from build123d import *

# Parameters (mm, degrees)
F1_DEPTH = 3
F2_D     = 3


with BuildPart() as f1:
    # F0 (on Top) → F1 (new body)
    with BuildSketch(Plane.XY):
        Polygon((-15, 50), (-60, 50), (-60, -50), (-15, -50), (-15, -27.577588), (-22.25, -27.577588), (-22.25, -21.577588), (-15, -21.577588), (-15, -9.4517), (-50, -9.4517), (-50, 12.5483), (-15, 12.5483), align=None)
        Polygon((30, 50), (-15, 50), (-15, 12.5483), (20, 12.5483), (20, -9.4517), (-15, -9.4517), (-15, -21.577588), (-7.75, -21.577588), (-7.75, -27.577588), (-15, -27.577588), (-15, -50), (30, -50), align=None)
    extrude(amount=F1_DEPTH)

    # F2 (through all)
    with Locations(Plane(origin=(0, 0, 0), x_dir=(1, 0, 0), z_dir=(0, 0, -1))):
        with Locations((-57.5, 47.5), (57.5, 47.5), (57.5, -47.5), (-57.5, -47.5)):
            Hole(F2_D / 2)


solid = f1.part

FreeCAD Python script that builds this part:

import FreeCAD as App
import Part
import Sketcher

V = App.Vector

doc = App.newDocument("Part")
body = doc.addObject("PartDesign::Body", "Body")

# Sketch on XY plane
sketch1 = body.newObject("Sketcher::SketchObject", "Sketch")
sketch1.AttachmentSupport = (doc.getObject("XY_Plane"), [""])
sketch1.MapMode = "FlatFace"
sketch1.addGeometry(Part.LineSegment(V(-60, 50, 0), V(-60, -50, 0)), False)
sketch1.addGeometry(Part.LineSegment(V(-60, -50, 0), V(30, -50, 0)), False)
sketch1.addGeometry(Part.LineSegment(V(30, -50, 0), V(30, 50, 0)), False)
sketch1.addGeometry(Part.LineSegment(V(30, 50, 0), V(-60, 50, 0)), False)
sketch1.addGeometry(Part.LineSegment(V(-22, -28, 0), V(-22, -22, 0)), False)
sketch1.addGeometry(Part.LineSegment(V(-22, -22, 0), V(-8, -22, 0)), False)
sketch1.addGeometry(Part.LineSegment(V(-8, -22, 0), V(-8, -28, 0)), False)
sketch1.addGeometry(Part.LineSegment(V(-8, -28, 0), V(-22, -28, 0)), False)
sketch1.addGeometry(Part.LineSegment(V(-50, -9, 0), V(-50, 13, 0)), False)
sketch1.addGeometry(Part.LineSegment(V(-50, 13, 0), V(20, 13, 0)), False)
sketch1.addGeometry(Part.LineSegment(V(20, 13, 0), V(20, -9, 0)), False)
sketch1.addGeometry(Part.LineSegment(V(20, -9, 0), V(-50, -9, 0)), False)
sketch1.addConstraint(Sketcher.Constraint("Coincident", 0, 2, 1, 1))
sketch1.addConstraint(Sketcher.Constraint("Coincident", 1, 2, 2, 1))
sketch1.addConstraint(Sketcher.Constraint("Coincident", 2, 2, 3, 1))
sketch1.addConstraint(Sketcher.Constraint("Coincident", 3, 2, 0, 1))
sketch1.addConstraint(Sketcher.Constraint("Coincident", 4, 2, 5, 1))
sketch1.addConstraint(Sketcher.Constraint("Coincident", 5, 2, 6, 1))
sketch1.addConstraint(Sketcher.Constraint("Coincident", 6, 2, 7, 1))
sketch1.addConstraint(Sketcher.Constraint("Coincident", 7, 2, 4, 1))
sketch1.addConstraint(Sketcher.Constraint("Coincident", 8, 2, 9, 1))
sketch1.addConstraint(Sketcher.Constraint("Coincident", 9, 2, 10, 1))
sketch1.addConstraint(Sketcher.Constraint("Coincident", 10, 2, 11, 1))
sketch1.addConstraint(Sketcher.Constraint("Coincident", 11, 2, 8, 1))
sketch1.addConstraint(Sketcher.Constraint("Vertical", 0))
sketch1.addConstraint(Sketcher.Constraint("Horizontal", 1))
sketch1.addConstraint(Sketcher.Constraint("Vertical", 2))
sketch1.addConstraint(Sketcher.Constraint("Horizontal", 3))
sketch1.addConstraint(Sketcher.Constraint("Vertical", 4))
sketch1.addConstraint(Sketcher.Constraint("Horizontal", 5))
sketch1.addConstraint(Sketcher.Constraint("Vertical", 6))
sketch1.addConstraint(Sketcher.Constraint("Horizontal", 7))
sketch1.addConstraint(Sketcher.Constraint("Vertical", 8))
sketch1.addConstraint(Sketcher.Constraint("Horizontal", 9))
sketch1.addConstraint(Sketcher.Constraint("Vertical", 10))
sketch1.addConstraint(Sketcher.Constraint("Horizontal", 11))
sketch1.addConstraint(Sketcher.Constraint("DistanceX", 1, 1, 1, 2, 90.0))
sketch1.addConstraint(Sketcher.Constraint("DistanceX", 9, 1, 9, 2, 70.0))
sketch1.addConstraint(Sketcher.Constraint("DistanceY", 0, 2, 0, 1, 100.0))
sketch1.addConstraint(Sketcher.Constraint("DistanceY", 4, 1, 4, 2, 6.0))
sketch1.addConstraint(Sketcher.Constraint("DistanceY", 8, 1, 8, 2, 22.0))
sketch1.addConstraint(Sketcher.Constraint("DistanceX", 5, 1, 5, 2, 14.5))
sketch1.addConstraint(Sketcher.Constraint("DistanceX", 0, 2, -1, 1, 60.0))
sketch1.addConstraint(Sketcher.Constraint("DistanceY", 0, 2, -1, 1, 50.0))
sketch1.addConstraint(Sketcher.Constraint("DistanceX", 8, 2, -1, 1, 50.0))
sketch1.addConstraint(Sketcher.Constraint("DistanceX", 4, 2, -1, 1, 22.25))
sketch1.addConstraint(Sketcher.Constraint("DistanceY", -1, 1, 8, 2, 12.5483))
sketch1.addConstraint(Sketcher.Constraint("DistanceY", 4, 2, -1, 1, 21.577588))
pad1 = body.newObject("PartDesign::Pad", "Pad")
pad1.Profile = sketch1
pad1.Length = 3

# Sketch on XY plane
sketch2 = body.newObject("Sketcher::SketchObject", "Sketch001")
sketch2.AttachmentSupport = (doc.getObject("XY_Plane"), [""])
sketch2.MapMode = "FlatFace"
sketch2.addGeometry(Part.Circle(V(-57.5, -47.5, 0), V(0, 0, 1), 1.5), False)
sketch2.addGeometry(Part.Circle(V(57.5, -47.5, 0), V(0, 0, 1), 1.5), False)
sketch2.addGeometry(Part.Circle(V(57.5, 47.5, 0), V(0, 0, 1), 1.5), False)
sketch2.addGeometry(Part.Circle(V(-57.5, 47.5, 0), V(0, 0, 1), 1.5), False)
sketch2.addConstraint(Sketcher.Constraint("Equal", 0, 1))
sketch2.addConstraint(Sketcher.Constraint("Equal", 1, 2))
sketch2.addConstraint(Sketcher.Constraint("Equal", 2, 3))
sketch2.addConstraint(Sketcher.Constraint("Symmetric", 0, 3, 2, 3, -1, 1))
sketch2.addConstraint(Sketcher.Constraint("Symmetric", 1, 3, 3, 3, -1, 1))
sketch2.addConstraint(Sketcher.Constraint("Symmetric", 0, 3, 1, 3, -2))
sketch2.addConstraint(Sketcher.Constraint("Diameter", 0, 3.0))
sketch2.addConstraint(Sketcher.Constraint("DistanceX", 0, 3, 1, 3, 115.0))
sketch2.addConstraint(Sketcher.Constraint("DistanceY", 1, 3, 2, 3, 95.0))
doc.recompute()
hole = body.newObject("PartDesign::Hole", "Hole")
hole.Profile = sketch2
hole.ThreadType = "None"
hole.Diameter = 3
hole.DepthType = "ThroughAll"
hole.Reversed = True

doc.recompute()
